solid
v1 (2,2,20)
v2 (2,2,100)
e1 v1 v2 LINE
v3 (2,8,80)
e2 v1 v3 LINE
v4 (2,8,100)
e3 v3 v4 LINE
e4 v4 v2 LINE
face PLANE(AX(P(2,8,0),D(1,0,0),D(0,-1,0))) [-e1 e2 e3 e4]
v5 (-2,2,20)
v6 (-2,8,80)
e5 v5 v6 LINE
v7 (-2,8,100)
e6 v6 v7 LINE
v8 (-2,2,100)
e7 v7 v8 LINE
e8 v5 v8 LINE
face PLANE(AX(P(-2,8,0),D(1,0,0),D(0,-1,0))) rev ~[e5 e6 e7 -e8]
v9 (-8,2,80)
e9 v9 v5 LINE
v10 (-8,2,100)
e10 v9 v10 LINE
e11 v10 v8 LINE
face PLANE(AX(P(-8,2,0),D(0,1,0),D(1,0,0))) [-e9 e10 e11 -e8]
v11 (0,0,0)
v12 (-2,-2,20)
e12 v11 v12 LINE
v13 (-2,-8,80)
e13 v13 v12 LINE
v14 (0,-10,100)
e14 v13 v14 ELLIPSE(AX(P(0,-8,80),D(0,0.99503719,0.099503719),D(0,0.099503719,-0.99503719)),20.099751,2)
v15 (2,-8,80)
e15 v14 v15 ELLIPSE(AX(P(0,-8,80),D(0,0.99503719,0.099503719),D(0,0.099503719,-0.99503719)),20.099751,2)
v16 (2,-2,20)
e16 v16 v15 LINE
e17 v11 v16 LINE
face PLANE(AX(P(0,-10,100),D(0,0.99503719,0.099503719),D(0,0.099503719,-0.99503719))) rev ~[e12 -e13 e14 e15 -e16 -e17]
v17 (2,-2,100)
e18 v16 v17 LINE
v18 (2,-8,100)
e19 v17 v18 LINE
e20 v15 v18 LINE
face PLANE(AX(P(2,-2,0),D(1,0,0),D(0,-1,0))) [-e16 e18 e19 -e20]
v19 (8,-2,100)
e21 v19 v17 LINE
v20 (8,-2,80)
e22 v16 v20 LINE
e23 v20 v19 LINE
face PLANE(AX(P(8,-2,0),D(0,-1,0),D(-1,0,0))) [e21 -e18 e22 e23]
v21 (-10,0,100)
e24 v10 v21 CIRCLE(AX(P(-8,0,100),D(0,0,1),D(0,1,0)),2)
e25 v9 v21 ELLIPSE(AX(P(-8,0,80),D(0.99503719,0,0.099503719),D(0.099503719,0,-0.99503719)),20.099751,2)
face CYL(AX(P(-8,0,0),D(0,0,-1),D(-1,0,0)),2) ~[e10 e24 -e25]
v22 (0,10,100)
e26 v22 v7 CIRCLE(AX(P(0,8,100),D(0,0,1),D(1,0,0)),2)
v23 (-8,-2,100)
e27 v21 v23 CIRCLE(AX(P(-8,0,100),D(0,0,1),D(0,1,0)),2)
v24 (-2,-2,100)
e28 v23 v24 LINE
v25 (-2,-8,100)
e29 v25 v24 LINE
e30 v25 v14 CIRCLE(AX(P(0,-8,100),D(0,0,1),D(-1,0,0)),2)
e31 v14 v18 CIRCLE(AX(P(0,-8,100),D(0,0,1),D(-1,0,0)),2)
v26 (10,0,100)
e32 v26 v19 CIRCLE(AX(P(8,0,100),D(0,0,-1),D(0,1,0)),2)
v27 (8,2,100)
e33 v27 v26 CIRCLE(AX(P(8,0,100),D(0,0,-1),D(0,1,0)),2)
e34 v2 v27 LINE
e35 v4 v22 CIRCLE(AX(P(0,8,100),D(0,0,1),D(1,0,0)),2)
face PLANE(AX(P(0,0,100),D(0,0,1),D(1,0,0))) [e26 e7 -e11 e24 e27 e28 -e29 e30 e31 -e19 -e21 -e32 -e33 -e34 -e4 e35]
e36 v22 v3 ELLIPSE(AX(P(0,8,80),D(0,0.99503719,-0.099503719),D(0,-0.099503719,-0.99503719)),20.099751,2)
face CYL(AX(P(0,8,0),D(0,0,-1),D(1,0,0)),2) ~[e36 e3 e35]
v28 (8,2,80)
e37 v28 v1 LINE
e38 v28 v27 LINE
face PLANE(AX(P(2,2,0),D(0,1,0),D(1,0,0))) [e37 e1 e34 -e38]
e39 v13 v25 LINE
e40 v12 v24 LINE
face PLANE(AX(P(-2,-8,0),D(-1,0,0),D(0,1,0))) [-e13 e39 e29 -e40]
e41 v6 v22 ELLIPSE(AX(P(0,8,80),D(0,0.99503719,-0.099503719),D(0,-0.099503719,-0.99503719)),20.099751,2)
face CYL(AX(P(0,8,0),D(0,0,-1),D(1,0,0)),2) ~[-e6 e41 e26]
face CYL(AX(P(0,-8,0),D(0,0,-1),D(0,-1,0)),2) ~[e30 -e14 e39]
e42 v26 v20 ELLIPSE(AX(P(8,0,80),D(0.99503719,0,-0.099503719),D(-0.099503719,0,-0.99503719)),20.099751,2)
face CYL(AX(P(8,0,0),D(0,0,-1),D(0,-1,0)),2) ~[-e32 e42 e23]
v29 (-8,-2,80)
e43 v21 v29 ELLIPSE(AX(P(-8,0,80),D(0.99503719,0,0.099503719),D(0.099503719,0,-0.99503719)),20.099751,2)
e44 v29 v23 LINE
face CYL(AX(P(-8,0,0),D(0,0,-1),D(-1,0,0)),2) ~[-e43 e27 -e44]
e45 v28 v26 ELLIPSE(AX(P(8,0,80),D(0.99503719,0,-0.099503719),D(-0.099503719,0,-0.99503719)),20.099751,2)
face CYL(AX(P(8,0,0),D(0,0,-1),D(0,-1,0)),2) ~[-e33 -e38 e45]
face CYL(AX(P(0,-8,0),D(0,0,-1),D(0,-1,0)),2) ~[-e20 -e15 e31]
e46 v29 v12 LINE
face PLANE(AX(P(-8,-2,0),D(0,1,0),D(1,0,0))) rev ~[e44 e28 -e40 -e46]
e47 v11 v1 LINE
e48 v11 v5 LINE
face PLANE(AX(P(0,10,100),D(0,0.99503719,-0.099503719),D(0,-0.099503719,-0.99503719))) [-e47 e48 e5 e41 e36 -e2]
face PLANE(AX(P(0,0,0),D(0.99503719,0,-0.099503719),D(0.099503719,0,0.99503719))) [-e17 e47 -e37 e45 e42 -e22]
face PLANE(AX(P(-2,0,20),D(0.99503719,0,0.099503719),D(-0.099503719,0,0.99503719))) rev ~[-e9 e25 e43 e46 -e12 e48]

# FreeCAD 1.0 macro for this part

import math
import FreeCAD as App
import Part
import Sketcher

doc = App.newDocument("Part")
params = doc.addObject("Spreadsheet::Sheet", "Params")
for row, (alias, value) in enumerate([
    ("sketch1_radius", "2 mm"),
    ("pad1_length", "100 mm"),
    ("sketch2_width", "10 mm"),
    ("sketch2_height", "100 mm"),
    ("pocket1_length", "20 mm"),
    ("sketch3_width", "10 mm"),
    ("sketch3_height", "100 mm"),
    ("pocket2_length", "20 mm"),
], start=1):
    params.set(f"A{row}", alias)
    params.set(f"B{row}", "=" + value)
    params.setAlias(f"B{row}", alias)

body = doc.addObject("PartDesign::Body", "Body")

sketch1 = doc.addObject("Sketcher::SketchObject", "Sketch")
body.addObject(sketch1)
sketch1.AttachmentSupport = (doc.XY_Plane, [""])
sketch1.MapMode = "FlatFace"
sketch1.addGeometry([
    Part.LineSegment(App.Vector(2, -2, 0), App.Vector(8, -2, 0)),
    Part.ArcOfCircle(Part.Circle(App.Vector(8, 0, 0), App.Vector(0, 0, 1), 2), math.radians(-90), math.radians(90)),
    Part.LineSegment(App.Vector(8, 2, 0), App.Vector(2, 2, 0)),
    Part.LineSegment(App.Vector(2, 2, 0), App.Vector(2, 8, 0)),
    Part.ArcOfCircle(Part.Circle(App.Vector(0, 8, 0), App.Vector(0, 0, 1), 2), math.radians(0), math.radians(180)),
    Part.LineSegment(App.Vector(-2, 8, 0), App.Vector(-2, 2, 0)),
    Part.LineSegment(App.Vector(-2, 2, 0), App.Vector(-8, 2, 0)),
    Part.ArcOfCircle(Part.Circle(App.Vector(-8, 0, 0), App.Vector(0, 0, 1), 2), math.radians(90), math.radians(270)),
    Part.LineSegment(App.Vector(-8, -2, 0), App.Vector(-2, -2, 0)),
    Part.LineSegment(App.Vector(-2, -2, 0), App.Vector(-2, -8, 0)),
    Part.ArcOfCircle(Part.Circle(App.Vector(0, -8, 0), App.Vector(0, 0, 1), 2), math.radians(180), math.radians(360)),
    Part.LineSegment(App.Vector(2, -8, 0), App.Vector(2, -2, 0)),
], False)
sketch1.addConstraint([
    Sketcher.Constraint("Tangent", 0, 2, 1, 1),
    Sketcher.Constraint("Tangent", 1, 2, 2, 1),
    Sketcher.Constraint("Coincident", 2, 2, 3, 1),
    Sketcher.Constraint("Tangent", 3, 2, 4, 1),
    Sketcher.Constraint("Tangent", 4, 2, 5, 1),
    Sketcher.Constraint("Coincident", 5, 2, 6, 1),
    Sketcher.Constraint("Tangent", 6, 2, 7, 1),
    Sketcher.Constraint("Tangent", 7, 2, 8, 1),
    Sketcher.Constraint("Coincident", 8, 2, 9, 1),
    Sketcher.Constraint("Tangent", 9, 2, 10, 1),
    Sketcher.Constraint("Tangent", 10, 2, 11, 1),
    Sketcher.Constraint("Coincident", 11, 2, 0, 1),
    Sketcher.Constraint("Horizontal", 0),
    Sketcher.Constraint("Horizontal", 2),
    Sketcher.Constraint("Vertical", 3),
    Sketcher.Constraint("Vertical", 5),
    Sketcher.Constraint("Horizontal", 6),
    Sketcher.Constraint("Horizontal", 8),
    Sketcher.Constraint("Vertical", 9),
    Sketcher.Constraint("Vertical", 11),
    Sketcher.Constraint("Equal", 1, 4),
    Sketcher.Constraint("Equal", 4, 7),
    Sketcher.Constraint("Equal", 7, 10),
    Sketcher.Constraint("Symmetric", 1, 3, 7, 3, -1, 1),
    Sketcher.Constraint("Symmetric", 4, 3, 10, 3, -1, 1),
    Sketcher.Constraint("Symmetric", 2, 2, 5, 2, -2),
    Sketcher.Constraint("Equal", 8, 3),
    Sketcher.Constraint("Radius", 1, 2.0),
    Sketcher.Constraint("DistanceY", 0, 2, 4, 3, 10.0),
])
sketch1.setExpression("Constraints[27]", "Params.sketch1_radius")
pad1 = doc.addObject("PartDesign::Pad", "Pad")
body.addObject(pad1)
pad1.Profile = sketch1
pad1.setExpression("Length", "Params.pad1_length")

sketch2 = doc.addObject("Sketcher::SketchObject", "Sketch001")
body.addObject(sketch2)
sketch2.AttachmentSupport = (doc.XZ_Plane, [""])
sketch2.MapMode = "FlatFace"
sketch2.addGeometry([
    Part.LineSegment(App.Vector(-10, 100, 0), App.Vector(0, 0, 0)),
    Part.LineSegment(App.Vector(0, 0, 0), App.Vector(-10, 0, 0)),
    Part.LineSegment(App.Vector(-10, 0, 0), App.Vector(-10, 100, 0)),
    Part.LineSegment(App.Vector(0, 0, 0), App.Vector(10, 100, 0)),
    Part.LineSegment(App.Vector(10, 100, 0), App.Vector(10, 0, 0)),
    Part.LineSegment(App.Vector(10, 0, 0), App.Vector(0, 0, 0)),
], False)
sketch2.addConstraint([
    Sketcher.Constraint("Coincident", 0, 2, 1, 1),
    Sketcher.Constraint("Coincident", 1, 2, 2, 1),
    Sketcher.Constraint("Coincident", 2, 2, 0, 1),
    Sketcher.Constraint("Coincident", 3, 2, 4, 1),
    Sketcher.Constraint("Coincident", 4, 2, 5, 1),
    Sketcher.Constraint("Coincident", 5, 2, 3, 1),
    Sketcher.Constraint("Horizontal", 1),
    Sketcher.Constraint("Vertical", 2),
    Sketcher.Constraint("Vertical", 4),
    Sketcher.Constraint("Horizontal", 5),
    Sketcher.Constraint("Coincident", 0, 2, -1, 1),
    Sketcher.Constraint("Coincident", 5, 2, -1, 1),
    Sketcher.Constraint("Symmetric", 2, 2, 3, 2, -2),
    Sketcher.Constraint("DistanceX", 1, 2, 1, 1, 10.0),
    Sketcher.Constraint("DistanceY", 2, 1, 2, 2, 100.0),
])
sketch2.setExpression("Constraints[13]", "Params.sketch2_width")
sketch2.setExpression("Constraints[14]", "Params.sketch2_height")
pocket1 = doc.addObject("PartDesign::Pocket", "Pocket")
body.addObject(pocket1)
pocket1.Profile = sketch2
pocket1.setExpression("Length", "Params.pocket1_length")
pocket1.Midplane = True

sketch3 = doc.addObject("Sketcher::SketchObject", "Sketch002")
body.addObject(sketch3)
sketch3.AttachmentSupport = (doc.YZ_Plane, [""])
sketch3.MapMode = "FlatFace"
sketch3.addGeometry([
    Part.LineSegment(App.Vector(10, 100, 0), App.Vector(0, 0, 0)),
    Part.LineSegment(App.Vector(0, 0, 0), App.Vector(10, 0, 0)),
    Part.LineSegment(App.Vector(10, 0, 0), App.Vector(10, 100, 0)),
    Part.LineSegment(App.Vector(-10, 0, 0), App.Vector(0, 0, 0)),
    Part.LineSegment(App.Vector(0, 0, 0), App.Vector(-10, 100, 0)),
    Part.LineSegment(App.Vector(-10, 100, 0), App.Vector(-10, 0, 0)),
], False)
sketch3.addConstraint([
    Sketcher.Constraint("Coincident", 0, 2, 1, 1),
    Sketcher.Constraint("Coincident", 1, 2, 2, 1),
    Sketcher.Constraint("Coincident", 2, 2, 0, 1),
    Sketcher.Constraint("Coincident", 3, 2, 4, 1),
    Sketcher.Constraint("Coincident", 4, 2, 5, 1),
    Sketcher.Constraint("Coincident", 5, 2, 3, 1),
    Sketcher.Constraint("Horizontal", 1),
    Sketcher.Constraint("Vertical", 2),
    Sketcher.Constraint("Horizontal", 3),
    Sketcher.Constraint("Vertical", 5),
    Sketcher.Constraint("Coincident", 0, 2, -1, 1),
    Sketcher.Constraint("Coincident", 3, 2, -1, 1),
    Sketcher.Constraint("Symmetric", 2, 2, 4, 2, -2),
    Sketcher.Constraint("DistanceX", 1, 1, 1, 2, 10.0),
    Sketcher.Constraint("DistanceY", 2, 1, 2, 2, 100.0),
])
sketch3.setExpression("Constraints[13]", "Params.sketch3_width")
sketch3.setExpression("Constraints[14]", "Params.sketch3_height")
pocket2 = doc.addObject("PartDesign::Pocket", "Pocket001")
body.addObject(pocket2)
pocket2.Profile = sketch3
pocket2.setExpression("Length", "Params.pocket2_length")
pocket2.Midplane = True

doc.recompute()
